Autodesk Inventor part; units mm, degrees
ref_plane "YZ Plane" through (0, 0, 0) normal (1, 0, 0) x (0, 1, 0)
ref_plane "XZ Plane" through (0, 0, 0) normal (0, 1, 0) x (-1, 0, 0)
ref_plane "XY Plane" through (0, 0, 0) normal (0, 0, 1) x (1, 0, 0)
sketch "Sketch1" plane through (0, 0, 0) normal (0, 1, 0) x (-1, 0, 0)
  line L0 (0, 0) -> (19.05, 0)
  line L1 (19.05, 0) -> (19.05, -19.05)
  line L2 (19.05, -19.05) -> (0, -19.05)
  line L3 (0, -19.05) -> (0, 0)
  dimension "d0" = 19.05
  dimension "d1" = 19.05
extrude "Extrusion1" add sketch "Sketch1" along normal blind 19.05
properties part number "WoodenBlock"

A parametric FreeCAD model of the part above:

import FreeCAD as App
import Part
import Sketcher
from FreeCAD import Vector
Q = App.Units.Quantity


def add_polygon(sketch, points):
    """Adds a closed chain of lines whose ends are joined by coincident constraints."""
    first, n = sketch.GeometryCount, len(points)
    for a, b in zip(points, points[1:] + points[:1]):
        sketch.addGeometry(Part.LineSegment(App.Vector(*a, 0), App.Vector(*b, 0)), False)
    for i in range(n):
        sketch.addConstraint(Sketcher.Constraint("Coincident", first + i, 2, first + (i + 1) % n, 1))

doc = App.newDocument("Part")
body = doc.addObject("PartDesign::Body", "Body")

# Sketch on XZ plane
sketch1 = body.newObject("Sketcher::SketchObject", "Sketch")
sketch1.AttachmentSupport = (doc.getObject("XZ_Plane"), [""])
sketch1.MapMode = "FlatFace"
add_polygon(sketch1, [(-19.05, 0), (0, 0), (0, -19.05), (-19.05, -19.05)])  # lines 0-3
sketch1.addConstraint(Sketcher.Constraint("Horizontal", 0))
sketch1.addConstraint(Sketcher.Constraint("Vertical", 1))
sketch1.addConstraint(Sketcher.Constraint("Horizontal", 2))
sketch1.addConstraint(Sketcher.Constraint("Vertical", 3))
sketch1.addConstraint(Sketcher.Constraint("Coincident", 0, 2, -1, 1))
sketch1.addConstraint(Sketcher.Constraint("Equal", 2, 1))
sketch1.addConstraint(Sketcher.Constraint("DistanceX", 0, 1, 0, 2, Q("0.75 in")))
pad1 = body.newObject("PartDesign::Pad", "Pad")
pad1.Profile = sketch1
pad1.Length = Q("0.75 in")
pad1.Reversed = True

doc.recompute()
